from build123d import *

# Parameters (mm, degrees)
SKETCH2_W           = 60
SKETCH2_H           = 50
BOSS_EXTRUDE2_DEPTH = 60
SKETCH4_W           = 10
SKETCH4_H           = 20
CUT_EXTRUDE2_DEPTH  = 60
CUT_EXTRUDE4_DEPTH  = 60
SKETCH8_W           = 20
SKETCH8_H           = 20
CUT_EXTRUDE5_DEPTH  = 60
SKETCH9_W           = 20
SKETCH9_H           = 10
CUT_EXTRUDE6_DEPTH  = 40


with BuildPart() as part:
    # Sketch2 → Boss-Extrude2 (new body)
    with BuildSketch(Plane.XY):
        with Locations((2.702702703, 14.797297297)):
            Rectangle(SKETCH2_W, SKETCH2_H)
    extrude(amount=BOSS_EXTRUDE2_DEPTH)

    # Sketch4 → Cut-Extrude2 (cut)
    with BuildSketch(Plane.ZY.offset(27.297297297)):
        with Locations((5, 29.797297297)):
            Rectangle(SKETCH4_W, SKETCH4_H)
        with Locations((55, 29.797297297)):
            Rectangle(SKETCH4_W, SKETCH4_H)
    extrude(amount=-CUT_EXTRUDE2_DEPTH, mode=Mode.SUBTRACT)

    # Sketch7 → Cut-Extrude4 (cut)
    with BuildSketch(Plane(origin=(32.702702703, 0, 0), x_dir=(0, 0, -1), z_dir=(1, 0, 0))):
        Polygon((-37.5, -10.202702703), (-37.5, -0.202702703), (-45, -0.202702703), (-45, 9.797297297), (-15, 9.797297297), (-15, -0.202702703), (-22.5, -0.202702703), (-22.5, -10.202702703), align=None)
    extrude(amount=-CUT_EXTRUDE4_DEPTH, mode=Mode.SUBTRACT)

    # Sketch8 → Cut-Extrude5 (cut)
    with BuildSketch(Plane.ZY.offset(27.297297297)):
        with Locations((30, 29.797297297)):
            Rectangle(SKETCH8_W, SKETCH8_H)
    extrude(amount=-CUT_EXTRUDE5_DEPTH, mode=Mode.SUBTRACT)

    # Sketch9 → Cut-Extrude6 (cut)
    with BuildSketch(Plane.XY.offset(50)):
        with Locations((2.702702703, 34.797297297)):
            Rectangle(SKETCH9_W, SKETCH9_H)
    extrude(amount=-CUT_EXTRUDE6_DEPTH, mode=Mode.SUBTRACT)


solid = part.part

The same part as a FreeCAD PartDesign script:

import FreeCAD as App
import Part
import Sketcher

V = App.Vector

doc = App.newDocument("Part")
params = doc.addObject("Spreadsheet::Sheet", "Params")
for row, (alias, value) in enumerate([
    ("sketch1_width", "60 mm"),
    ("sketch1_height", "50 mm"),
    ("pad1_length", "60 mm"),
    ("sketch2_width", "20 mm"),
    ("sketch2_height", "10 mm"),
    ("pocket1_length", "60 mm"),
    ("sketch3_width", "10 mm"),
    ("sketch3_height", "15 mm"),
    ("sketch3_height2", "30 mm"),
    ("pocket2_length", "60 mm"),
    ("sketch4_width", "20 mm"),
    ("pocket3_length", "60 mm"),
    ("sketch5_width", "20 mm"),
    ("sketch5_height", "10 mm"),
    ("pocket4_length", "40 mm"),
], start=1):
    params.set(f"A{row}", alias)
    params.set(f"B{row}", "=" + value)
    params.setAlias(f"B{row}", alias)

body = doc.addObject("PartDesign::Body", "Body")

# Sketch on XY plane
sketch1 = doc.addObject("Sketcher::SketchObject", "Sketch")
body.addObject(sketch1)
sketch1.AttachmentSupport = (doc.XY_Plane, [""])
sketch1.MapMode = "FlatFace"
sketch1.addGeometry(Part.LineSegment(V(-27, 40, 0), V(-27, -10, 0)), False)
sketch1.addGeometry(Part.LineSegment(V(-27, -10, 0), V(33, -10, 0)), False)
sketch1.addGeometry(Part.LineSegment(V(33, -10, 0), V(33, 40, 0)), False)
sketch1.addGeometry(Part.LineSegment(V(33, 40, 0), V(-27, 40, 0)), False)
sketch1.addConstraint(Sketcher.Constraint("Coincident", 0, 2, 1, 1))
sketch1.addConstraint(Sketcher.Constraint("Coincident", 1, 2, 2, 1))
sketch1.addConstraint(Sketcher.Constraint("Coincident", 2, 2, 3, 1))
sketch1.addConstraint(Sketcher.Constraint("Coincident", 3, 2, 0, 1))
sketch1.addConstraint(Sketcher.Constraint("Vertical", 0))
sketch1.addConstraint(Sketcher.Constraint("Horizontal", 1))
sketch1.addConstraint(Sketcher.Constraint("Vertical", 2))
sketch1.addConstraint(Sketcher.Constraint("Horizontal", 3))
sketch1.addConstraint(Sketcher.Constraint("DistanceX", 1, 1, 1, 2, 60.0))
sketch1.addConstraint(Sketcher.Constraint("DistanceY", 0, 2, 0, 1, 50.0))
sketch1.addConstraint(Sketcher.Constraint("DistanceX", 0, 2, -1, 1, 27.297297))
sketch1.addConstraint(Sketcher.Constraint("DistanceY", 0, 2, -1, 1, 10.202703))
sketch1.setExpression("Constraints[8]", "Params.sketch1_width")
sketch1.setExpression("Constraints[9]", "Params.sketch1_height")
pad1 = doc.addObject("PartDesign::Pad", "Pad")
body.addObject(pad1)
pad1.Profile = sketch1
pad1.setExpression("Length", "Params.pad1_length")

# Sketch on YZ plane
sketch2 = doc.addObject("Sketcher::SketchObject", "Sketch001")
body.addObject(sketch2)
sketch2.AttachmentSupport = (doc.YZ_Plane, [""])
sketch2.MapMode = "FlatFace"
sketch2.AttachmentOffset = App.Placement(V(0, 0, -27.297297), App.Rotation())
sketch2.addGeometry(Part.LineSegment(V(40, 0, 0), V(20, 0, 0)), False)
sketch2.addGeometry(Part.LineSegment(V(20, 0, 0), V(20, 10, 0)), False)
sketch2.addGeometry(Part.LineSegment(V(20, 10, 0), V(40, 10, 0)), False)
sketch2.addGeometry(Part.LineSegment(V(40, 10, 0), V(40, 0, 0)), False)
sketch2.addGeometry(Part.LineSegment(V(40, 50, 0), V(20, 50, 0)), False)
sketch2.addGeometry(Part.LineSegment(V(20, 50, 0), V(20, 60, 0)), False)
sketch2.addGeometry(Part.LineSegment(V(20, 60, 0), V(40, 60, 0)), False)
sketch2.addGeometry(Part.LineSegment(V(40, 60, 0), V(40, 50, 0)), False)
sketch2.addConstraint(Sketcher.Constraint("Coincident", 0, 2, 1, 1))
sketch2.addConstraint(Sketcher.Constraint("Coincident", 1, 2, 2, 1))
sketch2.addConstraint(Sketcher.Constraint("Coincident", 2, 2, 3, 1))
sketch2.addConstraint(Sketcher.Constraint("Coincident", 3, 2, 0, 1))
sketch2.addConstraint(Sketcher.Constraint("Coincident", 4, 2, 5, 1))
sketch2.addConstraint(Sketcher.Constraint("Coincident", 5, 2, 6, 1))
sketch2.addConstraint(Sketcher.Constraint("Coincident", 6, 2, 7, 1))
sketch2.addConstraint(Sketcher.Constraint("Coincident", 7, 2, 4, 1))
sketch2.addConstraint(Sketcher.Constraint("Horizontal", 0))
sketch2.addConstraint(Sketcher.Constraint("Vertical", 1))
sketch2.addConstraint(Sketcher.Constraint("Horizontal", 2))
sketch2.addConstraint(Sketcher.Constraint("Vertical", 3))
sketch2.addConstraint(Sketcher.Constraint("Horizontal", 4))
sketch2.addConstraint(Sketcher.Constraint("Vertical", 5))
sketch2.addConstraint(Sketcher.Constraint("Horizontal", 6))
sketch2.addConstraint(Sketcher.Constraint("Vertical", 7))
sketch2.addConstraint(Sketcher.Constraint("PointOnObject", 0, 2, -1))
sketch2.addConstraint(Sketcher.Constraint("Vertical", 1, 2, 4, 2))
sketch2.addConstraint(Sketcher.Constraint("Vertical", 3, 2, 6, 2))
sketch2.addConstraint(Sketcher.Constraint("Equal", 3, 5))
sketch2.addConstraint(Sketcher.Constraint("DistanceX", 0, 2, 0, 1, 20.0))
sketch2.addConstraint(Sketcher.Constraint("DistanceY", 1, 1, 1, 2, 10.0))
sketch2.addConstraint(Sketcher.Constraint("DistanceY", -1, 1, 4, 2, 50.0))
sketch2.addConstraint(Sketcher.Constraint("DistanceX", -1, 1, 0, 2, 19.797297))
sketch2.setExpression("Constraints[20]", "Params.sketch2_width")
sketch2.setExpression("Constraints[21]", "Params.sketch2_height")
pocket1 = doc.addObject("PartDesign::Pocket", "Pocket")
body.addObject(pocket1)
pocket1.Profile = sketch2
pocket1.setExpression("Length", "Params.pocket1_length")
pocket1.Reversed = True

# Sketch on YZ plane
sketch3 = doc.addObject("Sketcher::SketchObject", "Sketch002")
body.addObject(sketch3)
sketch3.AttachmentSupport = (doc.YZ_Plane, [""])
sketch3.MapMode = "FlatFace"
sketch3.AttachmentOffset = App.Placement(V(0, 0, 32.702703), App.Rotation())
sketch3.addGeometry(Part.LineSegment(V(0, 38, 0), V(-10, 38, 0)), False)
sketch3.addGeometry(Part.LineSegment(V(-10, 38, 0), V(-10, 22, 0)), False)
sketch3.addGeometry(Part.LineSegment(V(-10, 22, 0), V(0, 22, 0)), False)
sketch3.addGeometry(Part.LineSegment(V(0, 22, 0), V(0, 15, 0)), False)
sketch3.addGeometry(Part.LineSegment(V(0, 15, 0), V(10, 15, 0)), False)
sketch3.addGeometry(Part.LineSegment(V(10, 15, 0), V(10, 45, 0)), False)
sketch3.addGeometry(Part.LineSegment(V(10, 45, 0), V(0, 45, 0)), False)
sketch3.addGeometry(Part.LineSegment(V(0, 45, 0), V(0, 38, 0)), False)
sketch3.addConstraint(Sketcher.Constraint("Coincident", 0, 2, 1, 1))
sketch3.addConstraint(Sketcher.Constraint("Coincident", 1, 2, 2, 1))
sketch3.addConstraint(Sketcher.Constraint("Coincident", 2, 2, 3, 1))
sketch3.addConstraint(Sketcher.Constraint("Coincident", 3, 2, 4, 1))
sketch3.addConstraint(Sketcher.Constraint("Coincident", 4, 2, 5, 1))
sketch3.addConstraint(Sketcher.Constraint("Coincident", 5, 2, 6, 1))
sketch3.addConstraint(Sketcher.Constraint("Coincident", 6, 2, 7, 1))
sketch3.addConstraint(Sketcher.Constraint("Coincident", 7, 2, 0, 1))
sketch3.addConstraint(Sketcher.Constraint("Horizontal", 0))
sketch3.addConstraint(Sketcher.Constraint("Vertical", 1))
sketch3.addConstraint(Sketcher.Constraint("Horizontal", 2))
sketch3.addConstraint(Sketcher.Constraint("Vertical", 3))
sketch3.addConstraint(Sketcher.Constraint("Horizontal", 4))
sketch3.addConstraint(Sketcher.Constraint("Vertical", 5))
sketch3.addConstraint(Sketcher.Constraint("Horizontal", 6))
sketch3.addConstraint(Sketcher.Constraint("Vertical", 7))
sketch3.addConstraint(Sketcher.Constraint("Vertical", 3, 2, 6, 2))
sketch3.addConstraint(Sketcher.Constraint("Equal", 2, 4))
sketch3.addConstraint(Sketcher.Constraint("Equal", 3, 7))
sketch3.addConstraint(Sketcher.Constraint("DistanceX", 0, 2, 0, 1, 10.0))
sketch3.addConstraint(Sketcher.Constraint("DistanceY", 1, 2, 1, 1, 15.0))
sketch3.addConstraint(Sketcher.Constraint("DistanceY", 5, 1, 5, 2, 30.0))
sketch3.addConstraint(Sketcher.Constraint("DistanceY", -1, 1, 3, 2, 15.0))
sketch3.addConstraint(Sketcher.Constraint("DistanceX", 0, 2, -1, 1, 10.202703))
sketch3.setExpression("Constraints[19]", "Params.sketch3_width")
sketch3.setExpression("Constraints[20]", "Params.sketch3_height")
sketch3.setExpression("Constraints[21]", "Params.sketch3_height2")
pocket2 = doc.addObject("PartDesign::Pocket", "Pocket001")
body.addObject(pocket2)
pocket2.Profile = sketch3
pocket2.setExpression("Length", "Params.pocket2_length")

# Sketch on YZ plane
sketch4 = doc.addObject("Sketcher::SketchObject", "Sketch003")
body.addObject(sketch4)
sketch4.AttachmentSupport = (doc.YZ_Plane, [""])
sketch4.MapMode = "FlatFace"
sketch4.AttachmentOffset = App.Placement(V(0, 0, -27.297297), App.Rotation())
sketch4.addGeometry(Part.LineSegment(V(40, 20, 0), V(20, 20, 0)), False)
sketch4.addGeometry(Part.LineSegment(V(20, 20, 0), V(20, 40, 0)), False)
sketch4.addGeometry(Part.LineSegment(V(20, 40, 0), V(40, 40, 0)), False)
sketch4.addGeometry(Part.LineSegment(V(40, 40, 0), V(40, 20, 0)), False)
sketch4.addConstraint(Sketcher.Constraint("Coincident", 0, 2, 1, 1))
sketch4.addConstraint(Sketcher.Constraint("Coincident", 1, 2, 2, 1))
sketch4.addConstraint(Sketcher.Constraint("Coincident", 2, 2, 3, 1))
sketch4.addConstraint(Sketcher.Constraint("Coincident", 3, 2, 0, 1))
sketch4.addConstraint(Sketcher.Constraint("Horizontal", 0))
sketch4.addConstraint(Sketcher.Constraint("Vertical", 1))
sketch4.addConstraint(Sketcher.Constraint("Horizontal", 2))
sketch4.addConstraint(Sketcher.Constraint("Vertical", 3))
sketch4.addConstraint(Sketcher.Constraint("Equal", 2, 1))
sketch4.addConstraint(Sketcher.Constraint("DistanceX", 0, 2, 0, 1, 20.0))
sketch4.addConstraint(Sketcher.Constraint("DistanceY", -1, 1, 0, 2, 20.0))
sketch4.addConstraint(Sketcher.Constraint("DistanceX", -1, 1, 0, 2, 19.797297))
sketch4.setExpression("Constraints[9]", "Params.sketch4_width")
pocket3 = doc.addObject("PartDesign::Pocket", "Pocket002")
body.addObject(pocket3)
pocket3.Profile = sketch4
pocket3.setExpression("Length", "Params.pocket3_length")
pocket3.Reversed = True

# Sketch on XY plane
sketch5 = doc.addObject("Sketcher::SketchObject", "Sketch004")
body.addObject(sketch5)
sketch5.AttachmentSupport = (doc.XY_Plane, [""])
sketch5.MapMode = "FlatFace"
sketch5.AttachmentOffset = App.Placement(V(0, 0, 50), App.Rotation())
sketch5.addGeometry(Part.LineSegment(V(-7, 40, 0), V(-7, 30, 0)), False)
sketch5.addGeometry(Part.LineSegment(V(-7, 30, 0), V(13, 30, 0)), False)
sketch5.addGeometry(Part.LineSegment(V(13, 30, 0), V(13, 40, 0)), False)
sketch5.addGeometry(Part.LineSegment(V(13, 40, 0), V(-7, 40, 0)), False)
sketch5.addConstraint(Sketcher.Constraint("Coincident", 0, 2, 1, 1))
sketch5.addConstraint(Sketcher.Constraint("Coincident", 1, 2, 2, 1))
sketch5.addConstraint(Sketcher.Constraint("Coincident", 2, 2, 3, 1))
sketch5.addConstraint(Sketcher.Constraint("Coincident", 3, 2, 0, 1))
sketch5.addConstraint(Sketcher.Constraint("Vertical", 0))
sketch5.addConstraint(Sketcher.Constraint("Horizontal", 1))
sketch5.addConstraint(Sketcher.Constraint("Vertical", 2))
sketch5.addConstraint(Sketcher.Constraint("Horizontal", 3))
sketch5.addConstraint(Sketcher.Constraint("DistanceX", 1, 1, 1, 2, 20.0))
sketch5.addConstraint(Sketcher.Constraint("DistanceY", 0, 2, 0, 1, 10.0))
sketch5.addConstraint(Sketcher.Constraint("DistanceX", 0, 2, -1, 1, 7.297297))
sketch5.addConstraint(Sketcher.Constraint("DistanceY", -1, 1, 0, 2, 29.797297))
sketch5.setExpression("Constraints[8]", "Params.sketch5_width")
sketch5.setExpression("Constraints[9]", "Params.sketch5_height")
pocket4 = doc.addObject("PartDesign::Pocket", "Pocket003")
body.addObject(pocket4)
pocket4.Profile = sketch5
pocket4.setExpression("Length", "Params.pocket4_length")

doc.recompute()
